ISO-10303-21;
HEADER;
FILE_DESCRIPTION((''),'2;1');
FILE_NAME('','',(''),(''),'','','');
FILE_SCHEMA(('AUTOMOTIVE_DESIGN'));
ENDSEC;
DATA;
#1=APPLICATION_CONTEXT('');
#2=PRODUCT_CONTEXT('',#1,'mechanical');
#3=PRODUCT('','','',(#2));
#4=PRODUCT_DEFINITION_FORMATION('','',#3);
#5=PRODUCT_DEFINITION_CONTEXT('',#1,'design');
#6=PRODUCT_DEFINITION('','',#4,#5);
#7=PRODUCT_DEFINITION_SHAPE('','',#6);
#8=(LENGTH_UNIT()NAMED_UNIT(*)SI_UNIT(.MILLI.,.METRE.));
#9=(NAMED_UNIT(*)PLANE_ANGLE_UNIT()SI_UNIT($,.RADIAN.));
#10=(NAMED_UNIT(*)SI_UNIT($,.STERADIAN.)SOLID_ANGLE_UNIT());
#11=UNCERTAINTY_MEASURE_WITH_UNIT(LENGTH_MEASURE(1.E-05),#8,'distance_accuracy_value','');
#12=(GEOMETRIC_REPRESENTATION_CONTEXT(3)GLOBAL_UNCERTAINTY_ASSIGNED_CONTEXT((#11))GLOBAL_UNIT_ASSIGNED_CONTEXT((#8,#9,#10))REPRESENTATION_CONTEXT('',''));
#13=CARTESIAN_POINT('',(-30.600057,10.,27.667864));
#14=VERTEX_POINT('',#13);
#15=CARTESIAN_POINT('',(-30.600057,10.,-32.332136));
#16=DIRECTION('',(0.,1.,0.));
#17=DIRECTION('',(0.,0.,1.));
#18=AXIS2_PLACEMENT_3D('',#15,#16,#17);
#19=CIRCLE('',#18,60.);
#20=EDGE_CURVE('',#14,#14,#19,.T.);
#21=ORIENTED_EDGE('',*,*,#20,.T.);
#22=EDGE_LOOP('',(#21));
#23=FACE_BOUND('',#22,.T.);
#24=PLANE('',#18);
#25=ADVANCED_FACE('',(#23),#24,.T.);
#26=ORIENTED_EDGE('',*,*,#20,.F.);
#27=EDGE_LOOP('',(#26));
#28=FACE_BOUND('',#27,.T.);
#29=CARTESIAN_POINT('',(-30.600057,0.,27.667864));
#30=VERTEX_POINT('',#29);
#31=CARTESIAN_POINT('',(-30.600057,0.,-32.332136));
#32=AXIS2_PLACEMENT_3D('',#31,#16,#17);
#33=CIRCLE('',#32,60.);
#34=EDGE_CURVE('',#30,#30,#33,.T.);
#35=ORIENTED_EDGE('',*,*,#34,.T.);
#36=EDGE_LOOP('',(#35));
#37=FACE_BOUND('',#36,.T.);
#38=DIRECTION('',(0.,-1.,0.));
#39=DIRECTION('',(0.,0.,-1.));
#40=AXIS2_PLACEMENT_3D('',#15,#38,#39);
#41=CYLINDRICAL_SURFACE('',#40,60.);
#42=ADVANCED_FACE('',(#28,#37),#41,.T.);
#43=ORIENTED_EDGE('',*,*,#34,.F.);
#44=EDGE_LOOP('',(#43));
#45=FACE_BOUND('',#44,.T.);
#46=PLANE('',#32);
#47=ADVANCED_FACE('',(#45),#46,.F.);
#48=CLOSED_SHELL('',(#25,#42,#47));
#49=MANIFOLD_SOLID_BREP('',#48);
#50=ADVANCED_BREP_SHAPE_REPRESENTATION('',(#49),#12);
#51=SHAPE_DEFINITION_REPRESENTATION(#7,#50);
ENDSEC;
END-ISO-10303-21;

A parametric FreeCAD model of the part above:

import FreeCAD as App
import Part
import Sketcher

V = App.Vector
Q = App.Units.Quantity

doc = App.newDocument("Part")
params = doc.addObject("Spreadsheet::Sheet", "Params")
for row, (alias, value) in enumerate([
    ("sketch1_diameter", "120 mm"),
    ("pad1_length", "10 mm"),
], start=1):
    params.set(f"A{row}", alias)
    params.set(f"B{row}", "=" + value)
    params.setAlias(f"B{row}", alias)

body = doc.addObject("PartDesign::Body", "Body")

# Sketch on XZ plane
sketch1 = body.newObject("Sketcher::SketchObject", "Sketch")
sketch1.AttachmentSupport = (doc.getObject("XZ_Plane"), [""])
sketch1.MapMode = "FlatFace"
sketch1.addGeometry(Part.Circle(V(-31, -32, 0), V(0, 0, 1), 60), False)
sketch1.addConstraint(Sketcher.Constraint("Diameter", 0, Q("120 mm")))
sketch1.addConstraint(Sketcher.Constraint("DistanceX", 0, 3, -1, 1, Q("30.600057 mm")))
sketch1.addConstraint(Sketcher.Constraint("DistanceY", 0, 3, -1, 1, Q("32.332136 mm")))
sketch1.setExpression("Constraints[0]", "Params.sketch1_diameter")
pad1 = body.newObject("PartDesign::Pad", "Pad")
pad1.Profile = sketch1
pad1.setExpression("Length", "Params.pad1_length")
pad1.Reversed = True

doc.recompute()
